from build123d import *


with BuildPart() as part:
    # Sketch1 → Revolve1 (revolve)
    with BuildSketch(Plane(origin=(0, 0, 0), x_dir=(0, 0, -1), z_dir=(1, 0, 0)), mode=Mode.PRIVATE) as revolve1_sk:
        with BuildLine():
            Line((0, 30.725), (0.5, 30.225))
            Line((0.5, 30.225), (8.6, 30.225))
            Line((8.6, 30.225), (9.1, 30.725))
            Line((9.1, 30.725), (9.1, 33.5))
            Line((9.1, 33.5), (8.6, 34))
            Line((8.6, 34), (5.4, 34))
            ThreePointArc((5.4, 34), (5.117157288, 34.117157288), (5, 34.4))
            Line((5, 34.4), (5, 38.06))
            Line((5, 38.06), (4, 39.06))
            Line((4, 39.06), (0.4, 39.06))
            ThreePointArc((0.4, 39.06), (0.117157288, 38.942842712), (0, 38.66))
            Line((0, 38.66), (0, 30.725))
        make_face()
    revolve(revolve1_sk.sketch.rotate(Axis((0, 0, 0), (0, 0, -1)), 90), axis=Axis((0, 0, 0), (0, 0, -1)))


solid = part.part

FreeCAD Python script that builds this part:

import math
import FreeCAD as App
import Part
import Sketcher

doc = App.newDocument("Part")
body = doc.addObject("PartDesign::Body", "Body")

# Sketch on YZ plane
sketch1 = body.newObject("Sketcher::SketchObject", "Sketch")
sketch1.AttachmentSupport = (doc.getObject("YZ_Plane"), [""])
sketch1.MapMode = "FlatFace"
sketch1.addGeometry([
    Part.LineSegment(App.Vector(30.73, 0, 0), App.Vector(30.23, -0.5, 0)),  # 0
    Part.LineSegment(App.Vector(30.23, -0.5, 0), App.Vector(30.23, -8.6, 0)),  # 1
    Part.LineSegment(App.Vector(30.23, -8.6, 0), App.Vector(30.73, -9.1, 0)),  # 2
    Part.LineSegment(App.Vector(30.73, -9.1, 0), App.Vector(33.5, -9.1, 0)),  # 3
    Part.LineSegment(App.Vector(33.5, -9.1, 0), App.Vector(34, -8.6, 0)),  # 4
    Part.LineSegment(App.Vector(34, -8.6, 0), App.Vector(34, -5.4, 0)),  # 5
    Part.ArcOfCircle(Part.Circle(App.Vector(34.4, -5.4, 0), App.Vector(0, 0, 1), 0.4), math.radians(90), math.radians(180)),  # 6
    Part.LineSegment(App.Vector(34.4, -5, 0), App.Vector(38.06, -5, 0)),  # 7
    Part.LineSegment(App.Vector(38.06, -5, 0), App.Vector(39.06, -4, 0)),  # 8
    Part.LineSegment(App.Vector(39.06, -4, 0), App.Vector(39.06, -0.4, 0)),  # 9
    Part.ArcOfCircle(Part.Circle(App.Vector(38.66, -0.4, 0), App.Vector(0, 0, 1), 0.4), math.radians(0), math.radians(90)),  # 10
    Part.LineSegment(App.Vector(38.66, 0, 0), App.Vector(30.73, 0, 0)),  # 11
], False)
sketch1.addConstraint([
    Sketcher.Constraint("Coincident", 0, 2, 1, 1),
    Sketcher.Constraint("Coincident", 1, 2, 2, 1),
    Sketcher.Constraint("Coincident", 2, 2, 3, 1),
    Sketcher.Constraint("Coincident", 3, 2, 4, 1),
    Sketcher.Constraint("Coincident", 4, 2, 5, 1),
    Sketcher.Constraint("Tangent", 5, 2, 6, 2),
    Sketcher.Constraint("Tangent", 6, 1, 7, 1),
    Sketcher.Constraint("Coincident", 7, 2, 8, 1),
    Sketcher.Constraint("Coincident", 8, 2, 9, 1),
    Sketcher.Constraint("Tangent", 9, 2, 10, 1),
    Sketcher.Constraint("Tangent", 10, 2, 11, 1),
    Sketcher.Constraint("Coincident", 11, 2, 0, 1),
    Sketcher.Constraint("Vertical", 1),
    Sketcher.Constraint("Horizontal", 3),
    Sketcher.Constraint("Vertical", 5),
    Sketcher.Constraint("Horizontal", 7),
    Sketcher.Constraint("Vertical", 9),
    Sketcher.Constraint("Horizontal", 11),
    Sketcher.Constraint("Equal", 6, 10),
    Sketcher.Constraint("PointOnObject", 10, 2, -1),
    Sketcher.Constraint("Perpendicular", 0, 2),
    Sketcher.Constraint("Perpendicular", 2, 4),
    Sketcher.Constraint("Parallel", 4, 8),
    Sketcher.Constraint("Horizontal", 1, 2, 4, 2),
    Sketcher.Constraint("Vertical", 2, 2, 11, 2),
    Sketcher.Constraint("Equal", 0, 2),
    Sketcher.Constraint("Radius", 6, 0.4),
    Sketcher.Constraint("DistanceY", 1, 2, 1, 1, 8.1),
    Sketcher.Constraint("DistanceY", 5, 1, 5, 2, 3.2),
    Sketcher.Constraint("DistanceY", 9, 1, 9, 2, 3.6),
    Sketcher.Constraint("DistanceX", -1, 1, 4, 2, 34.0),
    Sketcher.Constraint("DistanceY", 6, 1, -1, 1, 5.0),
    Sketcher.Constraint("DistanceX", 7, 1, 7, 2, 3.66),
    Sketcher.Constraint("DistanceX", 3, 1, 3, 2, 2.775),
])
revolution = body.newObject("PartDesign::Revolution", "Revolution")
revolution.Profile = sketch1
revolution.ReferenceAxis = (sketch1, ["V_Axis"])
revolution.Angle = 360

doc.recompute()
